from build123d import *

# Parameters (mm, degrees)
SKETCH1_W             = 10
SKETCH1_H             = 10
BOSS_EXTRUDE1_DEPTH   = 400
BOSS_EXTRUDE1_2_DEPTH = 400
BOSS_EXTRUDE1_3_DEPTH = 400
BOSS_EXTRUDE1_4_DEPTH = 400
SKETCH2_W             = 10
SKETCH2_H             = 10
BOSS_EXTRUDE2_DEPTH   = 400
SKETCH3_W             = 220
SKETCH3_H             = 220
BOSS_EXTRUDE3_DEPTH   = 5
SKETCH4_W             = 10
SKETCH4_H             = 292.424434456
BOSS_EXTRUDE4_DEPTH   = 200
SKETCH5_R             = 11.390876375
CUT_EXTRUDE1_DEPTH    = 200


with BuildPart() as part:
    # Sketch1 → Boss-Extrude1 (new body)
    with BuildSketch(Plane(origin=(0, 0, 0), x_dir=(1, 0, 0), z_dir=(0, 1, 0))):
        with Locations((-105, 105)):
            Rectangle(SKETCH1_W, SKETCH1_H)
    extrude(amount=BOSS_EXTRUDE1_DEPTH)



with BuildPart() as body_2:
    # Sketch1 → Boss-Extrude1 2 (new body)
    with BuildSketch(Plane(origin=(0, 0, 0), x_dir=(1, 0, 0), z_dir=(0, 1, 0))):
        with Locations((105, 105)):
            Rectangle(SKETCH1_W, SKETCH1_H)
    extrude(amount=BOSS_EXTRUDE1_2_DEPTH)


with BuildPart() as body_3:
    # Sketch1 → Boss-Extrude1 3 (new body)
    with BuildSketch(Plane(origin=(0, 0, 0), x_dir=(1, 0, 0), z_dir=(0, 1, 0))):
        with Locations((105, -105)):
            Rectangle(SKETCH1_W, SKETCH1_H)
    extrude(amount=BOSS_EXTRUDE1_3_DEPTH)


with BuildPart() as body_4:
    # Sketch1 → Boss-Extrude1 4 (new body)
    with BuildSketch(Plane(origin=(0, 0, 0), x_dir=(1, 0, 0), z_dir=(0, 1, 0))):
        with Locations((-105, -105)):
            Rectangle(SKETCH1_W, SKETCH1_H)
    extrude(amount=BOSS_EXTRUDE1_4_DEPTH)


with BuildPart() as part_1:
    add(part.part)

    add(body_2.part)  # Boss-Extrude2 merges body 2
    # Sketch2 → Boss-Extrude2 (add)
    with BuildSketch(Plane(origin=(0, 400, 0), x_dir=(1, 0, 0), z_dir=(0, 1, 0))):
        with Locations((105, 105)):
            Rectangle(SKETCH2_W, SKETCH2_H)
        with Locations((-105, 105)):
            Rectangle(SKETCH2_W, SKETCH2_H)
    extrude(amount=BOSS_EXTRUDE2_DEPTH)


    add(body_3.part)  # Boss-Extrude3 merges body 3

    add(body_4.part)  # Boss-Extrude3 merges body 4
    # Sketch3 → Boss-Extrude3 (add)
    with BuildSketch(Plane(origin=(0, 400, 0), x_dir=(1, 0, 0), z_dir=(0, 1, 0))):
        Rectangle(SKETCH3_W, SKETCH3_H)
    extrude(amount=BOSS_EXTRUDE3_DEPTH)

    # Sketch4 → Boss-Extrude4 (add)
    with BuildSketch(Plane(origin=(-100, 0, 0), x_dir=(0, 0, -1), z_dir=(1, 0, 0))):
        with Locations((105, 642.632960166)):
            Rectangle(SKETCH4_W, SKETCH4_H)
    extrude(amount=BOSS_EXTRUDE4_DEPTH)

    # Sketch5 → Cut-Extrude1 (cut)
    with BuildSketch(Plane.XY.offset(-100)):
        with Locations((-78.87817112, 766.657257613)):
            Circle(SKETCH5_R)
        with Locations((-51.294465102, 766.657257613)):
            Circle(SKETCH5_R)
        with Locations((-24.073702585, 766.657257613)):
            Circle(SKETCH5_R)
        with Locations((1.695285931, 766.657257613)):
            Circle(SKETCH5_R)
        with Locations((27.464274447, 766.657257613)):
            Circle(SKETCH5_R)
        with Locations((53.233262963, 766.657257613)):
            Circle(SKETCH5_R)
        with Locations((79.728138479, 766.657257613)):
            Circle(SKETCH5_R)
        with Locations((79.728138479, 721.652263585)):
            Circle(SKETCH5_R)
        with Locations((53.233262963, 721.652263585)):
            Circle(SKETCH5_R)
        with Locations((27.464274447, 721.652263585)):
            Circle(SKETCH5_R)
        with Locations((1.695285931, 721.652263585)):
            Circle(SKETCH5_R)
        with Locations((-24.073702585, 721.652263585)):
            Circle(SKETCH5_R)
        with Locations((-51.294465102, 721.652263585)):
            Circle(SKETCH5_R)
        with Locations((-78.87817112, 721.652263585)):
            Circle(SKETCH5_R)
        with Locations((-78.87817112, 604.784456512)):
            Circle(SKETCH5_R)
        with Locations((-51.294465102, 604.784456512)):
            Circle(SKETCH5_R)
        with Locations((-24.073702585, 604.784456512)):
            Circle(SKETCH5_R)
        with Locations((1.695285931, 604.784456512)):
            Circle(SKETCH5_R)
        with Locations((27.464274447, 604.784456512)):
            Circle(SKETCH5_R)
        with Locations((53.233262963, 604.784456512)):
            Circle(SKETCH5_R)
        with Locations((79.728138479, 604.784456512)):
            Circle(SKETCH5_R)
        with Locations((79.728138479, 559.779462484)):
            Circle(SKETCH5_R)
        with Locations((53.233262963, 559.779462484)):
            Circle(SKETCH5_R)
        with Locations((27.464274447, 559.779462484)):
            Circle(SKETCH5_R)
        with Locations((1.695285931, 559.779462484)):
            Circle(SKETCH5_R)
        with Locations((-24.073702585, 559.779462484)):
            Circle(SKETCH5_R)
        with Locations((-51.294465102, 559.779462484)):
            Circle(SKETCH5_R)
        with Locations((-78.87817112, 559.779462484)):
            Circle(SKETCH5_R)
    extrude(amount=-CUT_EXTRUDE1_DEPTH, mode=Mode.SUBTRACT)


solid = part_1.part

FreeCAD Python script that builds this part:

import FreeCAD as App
import Part
import Sketcher

doc = App.newDocument("Part")
body = doc.addObject("PartDesign::Body", "Body")

sketch1 = body.newObject("Sketcher::SketchObject", "Sketch")
sketch1.AttachmentSupport = (doc.getObject("XZ_Plane"), [""])
sketch1.MapMode = "FlatFace"
sketch1.addGeometry([
    Part.LineSegment(App.Vector(-110, -110, 0), App.Vector(-110, -100, 0)),
    Part.LineSegment(App.Vector(-110, -100, 0), App.Vector(-100, -100, 0)),
    Part.LineSegment(App.Vector(-100, -100, 0), App.Vector(-100, -110, 0)),
    Part.LineSegment(App.Vector(-100, -110, 0), App.Vector(-110, -110, 0)),
], False)
sketch1.addConstraint([
    Sketcher.Constraint("Coincident", 0, 2, 1, 1),
    Sketcher.Constraint("Coincident", 1, 2, 2, 1),
    Sketcher.Constraint("Coincident", 2, 2, 3, 1),
    Sketcher.Constraint("Coincident", 3, 2, 0, 1),
    Sketcher.Constraint("Vertical", 0),
    Sketcher.Constraint("Horizontal", 1),
    Sketcher.Constraint("Vertical", 2),
    Sketcher.Constraint("Horizontal", 3),
    Sketcher.Constraint("Equal", 3, 0),
    Sketcher.Constraint("DistanceX", 1, 1, 1, 2, 10.0),
    Sketcher.Constraint("DistanceX", 0, 2, -1, 1, 110.0),
    Sketcher.Constraint("DistanceY", 0, 2, -1, 1, 100.0),
])
pad1 = body.newObject("PartDesign::Pad", "Pad")
pad1.Profile = sketch1
pad1.Length = 400
pad1.Reversed = True
body2 = doc.addObject("PartDesign::Body", "Body001")

sketch2 = body2.newObject("Sketcher::SketchObject", "Sketch001")
sketch2.AttachmentSupport = (doc.getObject("XZ_Plane001"), [""])
sketch2.MapMode = "FlatFace"
sketch2.addGeometry([
    Part.LineSegment(App.Vector(100, -110, 0), App.Vector(100, -100, 0)),
    Part.LineSegment(App.Vector(100, -100, 0), App.Vector(110, -100, 0)),
    Part.LineSegment(App.Vector(110, -100, 0), App.Vector(110, -110, 0)),
    Part.LineSegment(App.Vector(110, -110, 0), App.Vector(100, -110, 0)),
], False)
sketch2.addConstraint([
    Sketcher.Constraint("Coincident", 0, 2, 1, 1),
    Sketcher.Constraint("Coincident", 1, 2, 2, 1),
    Sketcher.Constraint("Coincident", 2, 2, 3, 1),
    Sketcher.Constraint("Coincident", 3, 2, 0, 1),
    Sketcher.Constraint("Vertical", 0),
    Sketcher.Constraint("Horizontal", 1),
    Sketcher.Constraint("Vertical", 2),
    Sketcher.Constraint("Horizontal", 3),
    Sketcher.Constraint("Equal", 3, 0),
    Sketcher.Constraint("DistanceX", 1, 1, 1, 2, 10.0),
    Sketcher.Constraint("DistanceX", -1, 1, 0, 2, 100.0),
    Sketcher.Constraint("DistanceY", 0, 2, -1, 1, 100.0),
])
pad2 = body2.newObject("PartDesign::Pad", "Pad001")
pad2.Profile = sketch2
pad2.Length = 400
pad2.Reversed = True
body3 = doc.addObject("PartDesign::Body", "Body002")

sketch3 = body3.newObject("Sketcher::SketchObject", "Sketch002")
sketch3.AttachmentSupport = (doc.getObject("XZ_Plane002"), [""])
sketch3.MapMode = "FlatFace"
sketch3.addGeometry([
    Part.LineSegment(App.Vector(100, 100, 0), App.Vector(100, 110, 0)),
    Part.LineSegment(App.Vector(100, 110, 0), App.Vector(110, 110, 0)),
    Part.LineSegment(App.Vector(110, 110, 0), App.Vector(110, 100, 0)),
    Part.LineSegment(App.Vector(110, 100, 0), App.Vector(100, 100, 0)),
], False)
sketch3.addConstraint([
    Sketcher.Constraint("Coincident", 0, 2, 1, 1),
    Sketcher.Constraint("Coincident", 1, 2, 2, 1),
    Sketcher.Constraint("Coincident", 2, 2, 3, 1),
    Sketcher.Constraint("Coincident", 3, 2, 0, 1),
    Sketcher.Constraint("Vertical", 0),
    Sketcher.Constraint("Horizontal", 1),
    Sketcher.Constraint("Vertical", 2),
    Sketcher.Constraint("Horizontal", 3),
    Sketcher.Constraint("Equal", 3, 0),
    Sketcher.Constraint("DistanceX", 1, 1, 1, 2, 10.0),
    Sketcher.Constraint("DistanceX", -1, 1, 0, 2, 100.0),
    Sketcher.Constraint("DistanceY", -1, 1, 0, 2, 110.0),
])
pad3 = body3.newObject("PartDesign::Pad", "Pad002")
pad3.Profile = sketch3
pad3.Length = 400
pad3.Reversed = True
body4 = doc.addObject("PartDesign::Body", "Body003")

sketch4 = body4.newObject("Sketcher::SketchObject", "Sketch003")
sketch4.AttachmentSupport = (doc.getObject("XZ_Plane003"), [""])
sketch4.MapMode = "FlatFace"
sketch4.addGeometry([
    Part.LineSegment(App.Vector(-110, 100, 0), App.Vector(-110, 110, 0)),
    Part.LineSegment(App.Vector(-110, 110, 0), App.Vector(-100, 110, 0)),
    Part.LineSegment(App.Vector(-100, 110, 0), App.Vector(-100, 100, 0)),
    Part.LineSegment(App.Vector(-100, 100, 0), App.Vector(-110, 100, 0)),
], False)
sketch4.addConstraint([
    Sketcher.Constraint("Coincident", 0, 2, 1, 1),
    Sketcher.Constraint("Coincident", 1, 2, 2, 1),
    Sketcher.Constraint("Coincident", 2, 2, 3, 1),
    Sketcher.Constraint("Coincident", 3, 2, 0, 1),
    Sketcher.Constraint("Vertical", 0),
    Sketcher.Constraint("Horizontal", 1),
    Sketcher.Constraint("Vertical", 2),
    Sketcher.Constraint("Horizontal", 3),
    Sketcher.Constraint("Equal", 3, 0),
    Sketcher.Constraint("DistanceX", 1, 1, 1, 2, 10.0),
    Sketcher.Constraint("DistanceX", 0, 2, -1, 1, 110.0),
    Sketcher.Constraint("DistanceY", -1, 1, 0, 2, 110.0),
])
pad4 = body4.newObject("PartDesign::Pad", "Pad003")
pad4.Profile = sketch4
pad4.Length = 400
pad4.Reversed = True
body.AllowCompound = True
doc.recompute()

boolean = body.newObject("PartDesign::Boolean", "Boolean")
boolean.Type = "Fuse"
boolean.addObjects([body2])

sketch5 = body.newObject("Sketcher::SketchObject", "Sketch004")
sketch5.AttachmentSupport = (doc.getObject("XZ_Plane"), [""])
sketch5.MapMode = "FlatFace"
sketch5.AttachmentOffset = App.Placement(App.Vector(0, 0, -400), App.Rotation())
sketch5.addGeometry([
    Part.LineSegment(App.Vector(100, -110, 0), App.Vector(100, -100, 0)),
    Part.LineSegment(App.Vector(100, -100, 0), App.Vector(110, -100, 0)),
    Part.LineSegment(App.Vector(110, -100, 0), App.Vector(110, -110, 0)),
    Part.LineSegment(App.Vector(110, -110, 0), App.Vector(100, -110, 0)),
    Part.LineSegment(App.Vector(-110, -110, 0), App.Vector(-110, -100, 0)),
    Part.LineSegment(App.Vector(-110, -100, 0), App.Vector(-100, -100, 0)),
    Part.LineSegment(App.Vector(-100, -100, 0), App.Vector(-100, -110, 0)),
    Part.LineSegment(App.Vector(-100, -110, 0), App.Vector(-110, -110, 0)),
], False)
sketch5.addConstraint([
    Sketcher.Constraint("Coincident", 0, 2, 1, 1),
    Sketcher.Constraint("Coincident", 1, 2, 2, 1),
    Sketcher.Constraint("Coincident", 2, 2, 3, 1),
    Sketcher.Constraint("Coincident", 3, 2, 0, 1),
    Sketcher.Constraint("Coincident", 4, 2, 5, 1),
    Sketcher.Constraint("Coincident", 5, 2, 6, 1),
    Sketcher.Constraint("Coincident", 6, 2, 7, 1),
    Sketcher.Constraint("Coincident", 7, 2, 4, 1),
    Sketcher.Constraint("Vertical", 0),
    Sketcher.Constraint("Horizontal", 1),
    Sketcher.Constraint("Vertical", 2),
    Sketcher.Constraint("Horizontal", 3),
    Sketcher.Constraint("Vertical", 4),
    Sketcher.Constraint("Horizontal", 5),
    Sketcher.Constraint("Vertical", 6),
    Sketcher.Constraint("Horizontal", 7),
    Sketcher.Constraint("Symmetric", 1, 2, 4, 2, -2),
    Sketcher.Constraint("Symmetric", 3, 2, 6, 2, -2),
    Sketcher.Constraint("Equal", 7, 0),
    Sketcher.Constraint("DistanceX", 1, 1, 1, 2, 10.0),
    Sketcher.Constraint("DistanceX", -1, 1, 0, 2, 100.0),
    Sketcher.Constraint("DistanceY", 0, 2, -1, 1, 100.0),
])
pad5 = body.newObject("PartDesign::Pad", "Pad004")
pad5.Profile = sketch5
pad5.Length = 400
pad5.Reversed = True
doc.recompute()

boolean2 = body.newObject("PartDesign::Boolean", "Boolean001")
boolean2.Type = "Fuse"
boolean2.addObjects([body3])
doc.recompute()

boolean3 = body.newObject("PartDesign::Boolean", "Boolean002")
boolean3.Type = "Fuse"
boolean3.addObjects([body4])

sketch6 = body.newObject("Sketcher::SketchObject", "Sketch005")
sketch6.AttachmentSupport = (doc.getObject("XZ_Plane"), [""])
sketch6.MapMode = "FlatFace"
sketch6.AttachmentOffset = App.Placement(App.Vector(0, 0, -400), App.Rotation())
sketch6.addGeometry([
    Part.LineSegment(App.Vector(-110, -110, 0), App.Vector(-110, 110, 0)),
    Part.LineSegment(App.Vector(-110, 110, 0), App.Vector(110, 110, 0)),
    Part.LineSegment(App.Vector(110, 110, 0), App.Vector(110, -110, 0)),
    Part.LineSegment(App.Vector(110, -110, 0), App.Vector(-110, -110, 0)),
], False)
sketch6.addConstraint([
    Sketcher.Constraint("Coincident", 0, 2, 1, 1),
    Sketcher.Constraint("Coincident", 1, 2, 2, 1),
    Sketcher.Constraint("Coincident", 2, 2, 3, 1),
    Sketcher.Constraint("Coincident", 3, 2, 0, 1),
    Sketcher.Constraint("Vertical", 0),
    Sketcher.Constraint("Horizontal", 1),
    Sketcher.Constraint("Vertical", 2),
    Sketcher.Constraint("Horizontal", 3),
    Sketcher.Constraint("Symmetric", 0, 2, 2, 2, -1, 1),
    Sketcher.Constraint("Equal", 3, 0),
    Sketcher.Constraint("DistanceX", 1, 1, 1, 2, 220.0),
])
pad6 = body.newObject("PartDesign::Pad", "Pad005")
pad6.Profile = sketch6
pad6.Length = 5
pad6.Reversed = True

sketch7 = body.newObject("Sketcher::SketchObject", "Sketch006")
sketch7.AttachmentSupport = (doc.getObject("YZ_Plane"), [""])
sketch7.MapMode = "FlatFace"
sketch7.AttachmentOffset = App.Placement(App.Vector(0, 0, -100), App.Rotation())
sketch7.addGeometry([
    Part.LineSegment(App.Vector(789, -100, 0), App.Vector(496, -100, 0)),
    Part.LineSegment(App.Vector(496, -100, 0), App.Vector(496, -110, 0)),
    Part.LineSegment(App.Vector(496, -110, 0), App.Vector(789, -110, 0)),
    Part.LineSegment(App.Vector(789, -110, 0), App.Vector(789, -100, 0)),
], False)
sketch7.addConstraint([
    Sketcher.Constraint("Coincident", 0, 2, 1, 1),
    Sketcher.Constraint("Coincident", 1, 2, 2, 1),
    Sketcher.Constraint("Coincident", 2, 2, 3, 1),
    Sketcher.Constraint("Coincident", 3, 2, 0, 1),
    Sketcher.Constraint("Horizontal", 0),
    Sketcher.Constraint("Vertical", 1),
    Sketcher.Constraint("Horizontal", 2),
    Sketcher.Constraint("Vertical", 3),
    Sketcher.Constraint("DistanceY", 1, 2, 1, 1, 10.0),
    Sketcher.Constraint("DistanceY", 0, 2, -1, 1, 100.0),
    Sketcher.Constraint("DistanceX", 0, 2, 0, 1, 292.424434),
    Sketcher.Constraint("DistanceX", -1, 1, 0, 2, 496.420743),
])
pad7 = body.newObject("PartDesign::Pad", "Pad006")
pad7.Profile = sketch7
pad7.Length = 200

sketch8 = body.newObject("Sketcher::SketchObject", "Sketch007")
sketch8.AttachmentSupport = (doc.getObject("XY_Plane"), [""])
sketch8.MapMode = "FlatFace"
sketch8.AttachmentOffset = App.Placement(App.Vector(0, 0, -100), App.Rotation())
sketch8.addGeometry([
    Part.Circle(App.Vector(-79, 767, 0), App.Vector(0, 0, 1), 11),
    Part.Circle(App.Vector(-51, 767, 0), App.Vector(0, 0, 1), 11),
    Part.Circle(App.Vector(-24, 767, 0), App.Vector(0, 0, 1), 11),
    Part.Circle(App.Vector(2, 767, 0), App.Vector(0, 0, 1), 11),
    Part.Circle(App.Vector(27, 767, 0), App.Vector(0, 0, 1), 11),
    Part.Circle(App.Vector(53, 767, 0), App.Vector(0, 0, 1), 11),
    Part.Circle(App.Vector(80, 767, 0), App.Vector(0, 0, 1), 11),
    Part.Circle(App.Vector(80, 722, 0), App.Vector(0, 0, 1), 11),
    Part.Circle(App.Vector(53, 722, 0), App.Vector(0, 0, 1), 11),
    Part.Circle(App.Vector(27, 722, 0), App.Vector(0, 0, 1), 11),
    Part.Circle(App.Vector(2, 722, 0), App.Vector(0, 0, 1), 11),
    Part.Circle(App.Vector(-24, 722, 0), App.Vector(0, 0, 1), 11),
    Part.Circle(App.Vector(-51, 722, 0), App.Vector(0, 0, 1), 11),
    Part.Circle(App.Vector(-79, 722, 0), App.Vector(0, 0, 1), 11),
    Part.Circle(App.Vector(-79, 605, 0), App.Vector(0, 0, 1), 11),
    Part.Circle(App.Vector(-51, 605, 0), App.Vector(0, 0, 1), 11),
    Part.Circle(App.Vector(-24, 605, 0), App.Vector(0, 0, 1), 11),
    Part.Circle(App.Vector(2, 605, 0), App.Vector(0, 0, 1), 11),
    Part.Circle(App.Vector(27, 605, 0), App.Vector(0, 0, 1), 11),
    Part.Circle(App.Vector(53, 605, 0), App.Vector(0, 0, 1), 11),
    Part.Circle(App.Vector(80, 605, 0), App.Vector(0, 0, 1), 11),
    Part.Circle(App.Vector(80, 560, 0), App.Vector(0, 0, 1), 11),
    Part.Circle(App.Vector(53, 560, 0), App.Vector(0, 0, 1), 11),
    Part.Circle(App.Vector(27, 560, 0), App.Vector(0, 0, 1), 11),
    Part.Circle(App.Vector(2, 560, 0), App.Vector(0, 0, 1), 11),
    Part.Circle(App.Vector(-24, 560, 0), App.Vector(0, 0, 1), 11),
    Part.Circle(App.Vector(-51, 560, 0), App.Vector(0, 0, 1), 11),
    Part.Circle(App.Vector(-79, 560, 0), App.Vector(0, 0, 1), 11),
], False)
sketch8.addConstraint([
    Sketcher.Constraint("Equal", 0, 1),
    Sketcher.Constraint("Equal", 1, 2),
    Sketcher.Constraint("Equal", 2, 3),
    Sketcher.Constraint("Equal", 3, 4),
    Sketcher.Constraint("Equal", 4, 5),
    Sketcher.Constraint("Equal", 5, 6),
    Sketcher.Constraint("Equal", 6, 7),
    Sketcher.Constraint("Equal", 7, 8),
    Sketcher.Constraint("Equal", 8, 9),
    Sketcher.Constraint("Equal", 9, 10),
    Sketcher.Constraint("Equal", 10, 11),
    Sketcher.Constraint("Equal", 11, 12),
    Sketcher.Constraint("Equal", 12, 13),
    Sketcher.Constraint("Equal", 13, 14),
    Sketcher.Constraint("Equal", 14, 15),
    Sketcher.Constraint("Equal", 15, 16),
    Sketcher.Constraint("Equal", 16, 17),
    Sketcher.Constraint("Equal", 17, 18),
    Sketcher.Constraint("Equal", 18, 19),
    Sketcher.Constraint("Equal", 19, 20),
    Sketcher.Constraint("Equal", 20, 21),
    Sketcher.Constraint("Equal", 21, 22),
    Sketcher.Constraint("Equal", 22, 23),
    Sketcher.Constraint("Equal", 23, 24),
    Sketcher.Constraint("Equal", 24, 25),
    Sketcher.Constraint("Equal", 25, 26),
    Sketcher.Constraint("Equal", 26, 27),
    Sketcher.Constraint("Horizontal", 0, 3, 1, 3),
    Sketcher.Constraint("Horizontal", 1, 3, 2, 3),
    Sketcher.Constraint("Horizontal", 2, 3, 3, 3),
    Sketcher.Constraint("Horizontal", 3, 3, 4, 3),
    Sketcher.Constraint("Horizontal", 4, 3, 5, 3),
    Sketcher.Constraint("Horizontal", 5, 3, 6, 3),
    Sketcher.Constraint("Horizontal", 7, 3, 8, 3),
    Sketcher.Constraint("Horizontal", 8, 3, 9, 3),
    Sketcher.Constraint("Horizontal", 9, 3, 10, 3),
    Sketcher.Constraint("Horizontal", 10, 3, 11, 3),
    Sketcher.Constraint("Horizontal", 11, 3, 12, 3),
    Sketcher.Constraint("Horizontal", 12, 3, 13, 3),
    Sketcher.Constraint("Horizontal", 14, 3, 15, 3),
    Sketcher.Constraint("Horizontal", 15, 3, 16, 3),
    Sketcher.Constraint("Horizontal", 16, 3, 17, 3),
    Sketcher.Constraint("Horizontal", 17, 3, 18, 3),
    Sketcher.Constraint("Horizontal", 18, 3, 19, 3),
    Sketcher.Constraint("Horizontal", 19, 3, 20, 3),
    Sketcher.Constraint("Horizontal", 21, 3, 22, 3),
    Sketcher.Constraint("Horizontal", 22, 3, 23, 3),
    Sketcher.Constraint("Horizontal", 23, 3, 24, 3),
    Sketcher.Constraint("Horizontal", 24, 3, 25, 3),
    Sketcher.Constraint("Horizontal", 25, 3, 26, 3),
    Sketcher.Constraint("Horizontal", 26, 3, 27, 3),
    Sketcher.Constraint("Vertical", 6, 3, 7, 3),
    Sketcher.Constraint("Vertical", 5, 3, 8, 3),
    Sketcher.Constraint("Vertical", 4, 3, 9, 3),
    Sketcher.Constraint("Vertical", 3, 3, 10, 3),
    Sketcher.Constraint("Vertical", 2, 3, 11, 3),
    Sketcher.Constraint("Vertical", 1, 3, 12, 3),
    Sketcher.Constraint("Vertical", 0, 3, 13, 3),
    Sketcher.Constraint("Vertical", 13, 3, 14, 3),
    Sketcher.Constraint("Vertical", 12, 3, 15, 3),
    Sketcher.Constraint("Vertical", 11, 3, 16, 3),
    Sketcher.Constraint("Vertical", 10, 3, 17, 3),
    Sketcher.Constraint("Vertical", 9, 3, 18, 3),
    Sketcher.Constraint("Vertical", 8, 3, 19, 3),
    Sketcher.Constraint("Vertical", 7, 3, 20, 3),
    Sketcher.Constraint("Vertical", 20, 3, 21, 3),
    Sketcher.Constraint("Vertical", 19, 3, 22, 3),
    Sketcher.Constraint("Vertical", 18, 3, 23, 3),
    Sketcher.Constraint("Vertical", 17, 3, 24, 3),
    Sketcher.Constraint("Vertical", 16, 3, 25, 3),
    Sketcher.Constraint("Vertical", 15, 3, 26, 3),
    Sketcher.Constraint("Vertical", 14, 3, 27, 3),
    Sketcher.Constraint("Diameter", 0, 22.781753),
    Sketcher.Constraint("DistanceX", 0, 3, -1, 1, 78.878171),
    Sketcher.Constraint("DistanceX", -1, 1, 6, 3, 79.728138),
    Sketcher.Constraint("DistanceX", 0, 3, 2, 3, 54.804469),
    Sketcher.Constraint("DistanceX", 2, 3, 3, 3, 25.768989),
    Sketcher.Constraint("DistanceX", 1, 3, 3, 3, 52.989751),
    Sketcher.Constraint("DistanceX", 3, 3, 4, 3, 25.768989),
    Sketcher.Constraint("DistanceX", 4, 3, 5, 3, 25.768989),
    Sketcher.Constraint("DistanceY", -1, 1, 0, 3, 766.657258),
    Sketcher.Constraint("DistanceY", -1, 1, 7, 3, 721.652264),
    Sketcher.Constraint("DistanceY", -1, 1, 14, 3, 604.784457),
    Sketcher.Constraint("DistanceY", -1, 1, 21, 3, 559.779462),
])
pocket1 = body.newObject("PartDesign::Pocket", "Pocket")
pocket1.Profile = sketch8
pocket1.Length = 200

doc.recompute()
